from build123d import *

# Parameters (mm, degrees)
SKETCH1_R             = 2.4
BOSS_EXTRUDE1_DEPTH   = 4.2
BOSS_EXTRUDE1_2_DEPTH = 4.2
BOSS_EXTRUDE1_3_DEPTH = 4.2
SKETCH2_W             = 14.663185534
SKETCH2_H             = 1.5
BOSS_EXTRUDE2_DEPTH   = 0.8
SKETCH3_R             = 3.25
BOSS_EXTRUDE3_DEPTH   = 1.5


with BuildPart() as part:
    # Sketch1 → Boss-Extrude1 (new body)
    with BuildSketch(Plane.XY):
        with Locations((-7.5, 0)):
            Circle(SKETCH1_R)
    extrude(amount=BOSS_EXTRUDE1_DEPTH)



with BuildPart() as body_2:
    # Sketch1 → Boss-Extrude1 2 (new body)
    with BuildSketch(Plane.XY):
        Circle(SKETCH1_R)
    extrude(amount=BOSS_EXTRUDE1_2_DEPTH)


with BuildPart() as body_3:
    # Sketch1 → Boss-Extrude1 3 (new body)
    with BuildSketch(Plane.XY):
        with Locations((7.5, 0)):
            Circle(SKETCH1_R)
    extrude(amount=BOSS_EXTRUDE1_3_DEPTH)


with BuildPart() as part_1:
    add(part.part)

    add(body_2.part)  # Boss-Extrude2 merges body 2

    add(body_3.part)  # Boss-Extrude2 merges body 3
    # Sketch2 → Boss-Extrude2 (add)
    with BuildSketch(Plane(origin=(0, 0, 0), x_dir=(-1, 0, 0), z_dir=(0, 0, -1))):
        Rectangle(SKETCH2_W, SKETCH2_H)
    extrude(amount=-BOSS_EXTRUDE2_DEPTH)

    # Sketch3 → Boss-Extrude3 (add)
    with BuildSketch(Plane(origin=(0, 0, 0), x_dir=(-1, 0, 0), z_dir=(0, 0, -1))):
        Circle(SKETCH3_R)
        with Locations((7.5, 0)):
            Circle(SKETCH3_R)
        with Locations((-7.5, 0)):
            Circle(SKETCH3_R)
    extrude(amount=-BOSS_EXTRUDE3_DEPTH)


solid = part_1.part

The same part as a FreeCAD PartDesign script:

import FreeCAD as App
import Part
import Sketcher

V = App.Vector
Q = App.Units.Quantity


def add_polygon(sketch, points):
    """Adds a closed chain of lines whose ends are joined by coincident constraints."""
    first, n = sketch.GeometryCount, len(points)
    for a, b in zip(points, points[1:] + points[:1]):
        sketch.addGeometry(Part.LineSegment(App.Vector(*a, 0), App.Vector(*b, 0)), False)
    for i in range(n):
        sketch.addConstraint(Sketcher.Constraint("Coincident", first + i, 2, first + (i + 1) % n, 1))

doc = App.newDocument("Part")
params = doc.addObject("Spreadsheet::Sheet", "Params")
for row, (alias, value) in enumerate([
    ("sketch1_diameter", "4.8 mm"),
    ("pad1_length", "4.2 mm"),
    ("sketch2_diameter", "4.8 mm"),
    ("pad2_length", "4.2 mm"),
    ("sketch3_diameter", "4.8 mm"),
    ("pad3_length", "4.2 mm"),
    ("sketch4_height", "1.5 mm"),
    ("pad4_length", "0.8 mm"),
    ("sketch5_diameter", "6.5 mm"),
    ("pad5_length", "1.5 mm"),
], start=1):
    params.set(f"A{row}", alias)
    params.set(f"B{row}", "=" + value)
    params.setAlias(f"B{row}", alias)

body = doc.addObject("PartDesign::Body", "Body")

# Sketch on XY plane
sketch1 = doc.addObject("Sketcher::SketchObject", "Sketch")
body.addObject(sketch1)
sketch1.AttachmentSupport = (doc.XY_Plane, [""])
sketch1.MapMode = "FlatFace"
sketch1.addGeometry(Part.Circle(V(-7.5, 0, 0), V(0, 0, 1), 2.4), False)
sketch1.addConstraint([
    Sketcher.Constraint("PointOnObject", 0, 3, -1),
    Sketcher.Constraint("Diameter", 0, Q("4.8 mm")),
    Sketcher.Constraint("DistanceX", 0, 3, -1, 1, Q("7.5 mm")),
])
sketch1.setExpression("Constraints[1]", "Params.sketch1_diameter")
pad1 = doc.addObject("PartDesign::Pad", "Pad")
body.addObject(pad1)
pad1.Profile = sketch1
pad1.setExpression("Length", "Params.pad1_length")
body2 = doc.addObject("PartDesign::Body", "Body001")

# Sketch on XY plane
sketch2 = doc.addObject("Sketcher::SketchObject", "Sketch001")
body2.addObject(sketch2)
sketch2.AttachmentSupport = (doc.getObject("XY_Plane001"), [""])
sketch2.MapMode = "FlatFace"
sketch2.addGeometry(Part.Circle(V(0, 0, 0), V(0, 0, 1), 2.4), False)
sketch2.addConstraint([
    Sketcher.Constraint("Coincident", 0, 3, -1, 1),
    Sketcher.Constraint("Diameter", 0, Q("4.8 mm")),
])
sketch2.setExpression("Constraints[1]", "Params.sketch2_diameter")
pad2 = doc.addObject("PartDesign::Pad", "Pad001")
body2.addObject(pad2)
pad2.Profile = sketch2
pad2.setExpression("Length", "Params.pad2_length")
body3 = doc.addObject("PartDesign::Body", "Body002")

# Sketch on XY plane
sketch3 = doc.addObject("Sketcher::SketchObject", "Sketch002")
body3.addObject(sketch3)
sketch3.AttachmentSupport = (doc.getObject("XY_Plane002"), [""])
sketch3.MapMode = "FlatFace"
sketch3.addGeometry(Part.Circle(V(7.5, 0, 0), V(0, 0, 1), 2.4), False)
sketch3.addConstraint([
    Sketcher.Constraint("PointOnObject", 0, 3, -1),
    Sketcher.Constraint("Diameter", 0, Q("4.8 mm")),
    Sketcher.Constraint("DistanceX", -1, 1, 0, 3, Q("7.5 mm")),
])
sketch3.setExpression("Constraints[1]", "Params.sketch3_diameter")
pad3 = doc.addObject("PartDesign::Pad", "Pad002")
body3.addObject(pad3)
pad3.Profile = sketch3
pad3.setExpression("Length", "Params.pad3_length")
body.AllowCompound = True
doc.recompute()

boolean = doc.addObject("PartDesign::Boolean", "Boolean")
body.addObject(boolean)
boolean.Type = "Fuse"
boolean.addObjects([body2])
doc.recompute()

boolean2 = doc.addObject("PartDesign::Boolean", "Boolean001")
body.addObject(boolean2)
boolean2.Type = "Fuse"
boolean2.addObjects([body3])

# Sketch on XY plane
sketch4 = doc.addObject("Sketcher::SketchObject", "Sketch003")
body.addObject(sketch4)
sketch4.AttachmentSupport = (doc.XY_Plane, [""])
sketch4.MapMode = "FlatFace"
add_polygon(sketch4, [(7.3, 0.8), (7.3, -0.8), (-7.3, -0.8), (-7.3, 0.8)])  # lines 0-3
sketch4.addConstraint([
    Sketcher.Constraint("Vertical", 0),
    Sketcher.Constraint("Horizontal", 1),
    Sketcher.Constraint("Vertical", 2),
    Sketcher.Constraint("Horizontal", 3),
    Sketcher.Constraint("Symmetric", 0, 2, 2, 2, -1, 1),
    Sketcher.Constraint("DistanceY", 0, 2, 0, 1, Q("1.5 mm")),
    Sketcher.Constraint("DistanceX", 1, 2, 1, 1, Q("14.663186 mm")),
])
sketch4.setExpression("Constraints[9]", "Params.sketch4_height")
pad4 = doc.addObject("PartDesign::Pad", "Pad003")
body.addObject(pad4)
pad4.Profile = sketch4
pad4.setExpression("Length", "Params.pad4_length")

# Sketch on XY plane
sketch5 = doc.addObject("Sketcher::SketchObject", "Sketch004")
body.addObject(sketch5)
sketch5.AttachmentSupport = (doc.XY_Plane, [""])
sketch5.MapMode = "FlatFace"
sketch5.addGeometry([
    Part.Circle(V(0, 0, 0), V(0, 0, 1), 3.2),
    Part.Circle(V(-7.5, 0, 0), V(0, 0, 1), 3.2),
    Part.Circle(V(7.5, 0, 0), V(0, 0, 1), 3.2),
], False)
sketch5.addConstraint([
    Sketcher.Constraint("Coincident", 0, 3, -1, 1),
    Sketcher.Constraint("Equal", 0, 1),
    Sketcher.Constraint("Equal", 1, 2),
    Sketcher.Constraint("Symmetric", 1, 3, 2, 3, -1, 1),
    Sketcher.Constraint("PointOnObject", 1, 3, -1),
    Sketcher.Constraint("Diameter", 0, Q("6.5 mm")),
    Sketcher.Constraint("DistanceX", 1, 3, 2, 3, Q("15 mm")),
])
sketch5.setExpression("Constraints[5]", "Params.sketch5_diameter")
pad5 = doc.addObject("PartDesign::Pad", "Pad004")
body.addObject(pad5)
pad5.Profile = sketch5
pad5.setExpression("Length", "Params.pad5_length")

doc.recompute()
